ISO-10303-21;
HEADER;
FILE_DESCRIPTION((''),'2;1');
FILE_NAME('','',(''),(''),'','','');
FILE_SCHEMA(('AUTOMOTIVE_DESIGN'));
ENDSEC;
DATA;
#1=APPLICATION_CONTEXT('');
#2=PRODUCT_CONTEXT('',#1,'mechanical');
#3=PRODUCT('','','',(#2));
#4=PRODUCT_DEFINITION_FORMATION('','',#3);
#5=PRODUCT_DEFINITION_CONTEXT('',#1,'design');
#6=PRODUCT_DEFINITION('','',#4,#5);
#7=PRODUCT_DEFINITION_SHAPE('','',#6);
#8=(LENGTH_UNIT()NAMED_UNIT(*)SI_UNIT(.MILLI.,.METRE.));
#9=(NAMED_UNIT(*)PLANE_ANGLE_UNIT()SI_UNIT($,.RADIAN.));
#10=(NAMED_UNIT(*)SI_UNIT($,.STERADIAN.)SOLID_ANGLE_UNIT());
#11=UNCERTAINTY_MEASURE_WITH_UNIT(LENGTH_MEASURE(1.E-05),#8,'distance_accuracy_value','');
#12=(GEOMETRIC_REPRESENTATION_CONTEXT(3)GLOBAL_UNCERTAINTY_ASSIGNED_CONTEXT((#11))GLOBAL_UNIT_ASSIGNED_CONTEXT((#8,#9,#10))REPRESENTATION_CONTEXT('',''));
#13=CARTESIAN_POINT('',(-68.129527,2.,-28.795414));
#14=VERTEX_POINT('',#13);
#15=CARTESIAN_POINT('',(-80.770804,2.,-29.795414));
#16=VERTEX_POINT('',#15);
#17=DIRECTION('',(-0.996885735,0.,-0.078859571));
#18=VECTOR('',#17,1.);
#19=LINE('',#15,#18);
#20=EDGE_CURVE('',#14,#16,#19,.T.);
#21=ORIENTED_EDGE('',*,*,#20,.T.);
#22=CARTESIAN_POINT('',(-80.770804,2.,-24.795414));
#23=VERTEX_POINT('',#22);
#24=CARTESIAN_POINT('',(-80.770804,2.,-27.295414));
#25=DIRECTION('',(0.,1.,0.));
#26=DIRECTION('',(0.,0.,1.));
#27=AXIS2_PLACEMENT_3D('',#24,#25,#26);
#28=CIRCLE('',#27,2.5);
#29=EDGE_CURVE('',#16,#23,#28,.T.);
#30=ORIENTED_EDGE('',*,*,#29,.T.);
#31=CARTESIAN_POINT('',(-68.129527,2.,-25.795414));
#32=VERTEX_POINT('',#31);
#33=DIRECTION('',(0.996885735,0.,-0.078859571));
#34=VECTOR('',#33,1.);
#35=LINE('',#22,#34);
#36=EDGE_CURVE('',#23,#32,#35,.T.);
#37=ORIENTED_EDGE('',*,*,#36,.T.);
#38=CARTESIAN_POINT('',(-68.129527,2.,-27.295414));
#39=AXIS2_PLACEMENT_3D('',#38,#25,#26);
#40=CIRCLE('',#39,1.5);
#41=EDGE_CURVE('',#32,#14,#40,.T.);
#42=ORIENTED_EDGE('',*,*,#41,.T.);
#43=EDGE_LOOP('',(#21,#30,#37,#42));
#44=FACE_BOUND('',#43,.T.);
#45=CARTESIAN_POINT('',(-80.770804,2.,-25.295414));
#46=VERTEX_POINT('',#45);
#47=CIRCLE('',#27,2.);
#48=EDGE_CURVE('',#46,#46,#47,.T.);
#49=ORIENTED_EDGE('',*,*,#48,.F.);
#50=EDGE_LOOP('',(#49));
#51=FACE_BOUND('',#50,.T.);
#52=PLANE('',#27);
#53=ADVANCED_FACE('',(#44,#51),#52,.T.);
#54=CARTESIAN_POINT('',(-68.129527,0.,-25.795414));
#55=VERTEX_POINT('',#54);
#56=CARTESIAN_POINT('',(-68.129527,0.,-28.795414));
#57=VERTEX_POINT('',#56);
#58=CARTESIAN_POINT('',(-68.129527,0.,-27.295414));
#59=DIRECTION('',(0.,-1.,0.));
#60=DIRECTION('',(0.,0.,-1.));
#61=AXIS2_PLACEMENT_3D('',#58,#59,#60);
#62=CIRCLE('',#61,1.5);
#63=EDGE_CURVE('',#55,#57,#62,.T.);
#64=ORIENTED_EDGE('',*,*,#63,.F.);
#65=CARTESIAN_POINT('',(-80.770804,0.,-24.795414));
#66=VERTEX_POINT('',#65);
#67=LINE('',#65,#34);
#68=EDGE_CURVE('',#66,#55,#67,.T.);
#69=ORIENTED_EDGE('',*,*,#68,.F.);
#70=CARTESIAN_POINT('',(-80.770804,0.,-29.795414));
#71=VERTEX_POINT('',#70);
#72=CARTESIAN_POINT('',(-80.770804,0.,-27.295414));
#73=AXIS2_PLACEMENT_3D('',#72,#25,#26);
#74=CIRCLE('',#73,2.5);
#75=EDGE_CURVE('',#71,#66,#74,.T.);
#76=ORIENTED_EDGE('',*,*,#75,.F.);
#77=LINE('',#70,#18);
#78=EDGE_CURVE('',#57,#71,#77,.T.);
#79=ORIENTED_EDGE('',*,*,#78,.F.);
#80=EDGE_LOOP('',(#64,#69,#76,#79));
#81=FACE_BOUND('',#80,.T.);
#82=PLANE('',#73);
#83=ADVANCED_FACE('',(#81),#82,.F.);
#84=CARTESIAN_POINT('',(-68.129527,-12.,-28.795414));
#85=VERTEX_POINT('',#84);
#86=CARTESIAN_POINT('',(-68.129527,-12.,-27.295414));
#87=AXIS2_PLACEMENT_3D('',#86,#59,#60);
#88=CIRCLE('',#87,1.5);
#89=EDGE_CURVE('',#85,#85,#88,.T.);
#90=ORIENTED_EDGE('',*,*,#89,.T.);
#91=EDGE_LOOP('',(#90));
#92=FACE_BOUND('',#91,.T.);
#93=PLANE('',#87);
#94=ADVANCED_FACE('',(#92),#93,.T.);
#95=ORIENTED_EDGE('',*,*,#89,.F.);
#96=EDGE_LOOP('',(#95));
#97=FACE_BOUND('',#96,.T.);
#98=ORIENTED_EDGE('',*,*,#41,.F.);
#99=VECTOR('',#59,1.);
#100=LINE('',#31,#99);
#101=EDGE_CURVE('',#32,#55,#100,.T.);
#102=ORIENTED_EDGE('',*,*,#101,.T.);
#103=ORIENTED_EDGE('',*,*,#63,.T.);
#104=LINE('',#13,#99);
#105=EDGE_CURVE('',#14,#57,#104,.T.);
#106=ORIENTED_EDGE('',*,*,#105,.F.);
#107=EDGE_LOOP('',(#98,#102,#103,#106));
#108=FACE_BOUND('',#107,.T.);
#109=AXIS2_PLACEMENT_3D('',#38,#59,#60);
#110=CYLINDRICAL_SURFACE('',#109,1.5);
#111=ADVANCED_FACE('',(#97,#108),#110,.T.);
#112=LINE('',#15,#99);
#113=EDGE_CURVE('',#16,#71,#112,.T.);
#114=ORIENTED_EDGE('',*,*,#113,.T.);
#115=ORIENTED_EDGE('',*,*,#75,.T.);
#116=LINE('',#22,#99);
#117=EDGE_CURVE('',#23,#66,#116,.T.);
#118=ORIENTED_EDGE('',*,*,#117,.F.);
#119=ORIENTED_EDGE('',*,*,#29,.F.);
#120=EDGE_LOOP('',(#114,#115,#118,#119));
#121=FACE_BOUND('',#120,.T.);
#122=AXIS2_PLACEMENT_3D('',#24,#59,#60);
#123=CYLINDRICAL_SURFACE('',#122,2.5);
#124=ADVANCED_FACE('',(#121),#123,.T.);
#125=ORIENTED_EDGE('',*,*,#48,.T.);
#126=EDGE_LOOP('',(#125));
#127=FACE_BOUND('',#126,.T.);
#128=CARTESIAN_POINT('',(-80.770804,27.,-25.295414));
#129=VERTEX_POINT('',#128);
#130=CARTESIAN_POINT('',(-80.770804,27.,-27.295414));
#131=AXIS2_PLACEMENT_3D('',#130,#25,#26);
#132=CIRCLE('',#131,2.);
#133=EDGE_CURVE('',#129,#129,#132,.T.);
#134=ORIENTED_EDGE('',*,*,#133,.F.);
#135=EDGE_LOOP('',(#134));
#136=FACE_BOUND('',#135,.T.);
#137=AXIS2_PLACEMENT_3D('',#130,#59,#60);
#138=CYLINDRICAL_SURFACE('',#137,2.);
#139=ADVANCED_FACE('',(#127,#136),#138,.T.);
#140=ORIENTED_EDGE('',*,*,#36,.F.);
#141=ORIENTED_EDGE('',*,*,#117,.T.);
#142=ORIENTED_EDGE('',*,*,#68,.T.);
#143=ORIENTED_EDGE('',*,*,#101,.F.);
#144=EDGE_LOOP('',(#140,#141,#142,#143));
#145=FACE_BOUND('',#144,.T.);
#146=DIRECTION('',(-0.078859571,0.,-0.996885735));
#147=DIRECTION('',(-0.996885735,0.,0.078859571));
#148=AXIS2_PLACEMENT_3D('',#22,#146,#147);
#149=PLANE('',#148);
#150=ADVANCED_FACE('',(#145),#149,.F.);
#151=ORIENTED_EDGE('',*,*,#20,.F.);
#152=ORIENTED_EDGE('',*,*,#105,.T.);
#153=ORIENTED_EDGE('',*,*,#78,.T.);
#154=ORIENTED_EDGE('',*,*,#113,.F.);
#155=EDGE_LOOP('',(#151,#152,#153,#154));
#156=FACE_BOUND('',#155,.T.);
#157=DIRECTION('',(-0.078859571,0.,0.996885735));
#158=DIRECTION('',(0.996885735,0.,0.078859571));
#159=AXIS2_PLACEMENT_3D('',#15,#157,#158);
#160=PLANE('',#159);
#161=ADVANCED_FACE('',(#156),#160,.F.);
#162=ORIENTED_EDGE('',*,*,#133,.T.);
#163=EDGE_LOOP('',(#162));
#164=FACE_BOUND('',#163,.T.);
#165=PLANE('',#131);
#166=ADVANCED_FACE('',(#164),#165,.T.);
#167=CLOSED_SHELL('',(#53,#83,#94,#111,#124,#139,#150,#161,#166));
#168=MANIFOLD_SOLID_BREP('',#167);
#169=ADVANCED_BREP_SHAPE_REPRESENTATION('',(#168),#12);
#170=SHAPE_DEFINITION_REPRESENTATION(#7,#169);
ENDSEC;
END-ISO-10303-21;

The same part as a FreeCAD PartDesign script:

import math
import FreeCAD as App
import Part
import Sketcher
from FreeCAD import Vector
Q = App.Units.Quantity

doc = App.newDocument("Part")
body = doc.addObject("PartDesign::Body", "Body")

# Sketch on XZ plane
sketch1 = body.newObject("Sketcher::SketchObject", "Sketch")
sketch1.AttachmentSupport = (doc.getObject("XZ_Plane"), [""])
sketch1.MapMode = "FlatFace"
sketch1.addGeometry(Part.LineSegment(Vector(-68.1, -28.8, 0), Vector(-80.8, -29.8, 0)), False)
sketch1.addGeometry(Part.ArcOfCircle(Part.Circle(Vector(-80.8, -27.3, 0), Vector(0, 0, 1), 2.5), math.radians(90), math.radians(270)), False)
sketch1.addGeometry(Part.LineSegment(Vector(-80.8, -24.8, 0), Vector(-68.1, -25.8, 0)), False)
sketch1.addGeometry(Part.ArcOfCircle(Part.Circle(Vector(-68.1, -27.3, 0), Vector(0, 0, 1), 1.5), math.radians(-90), math.radians(90)), False)
sketch1.addConstraint(Sketcher.Constraint("Coincident", 0, 2, 1, 2))
sketch1.addConstraint(Sketcher.Constraint("Coincident", 1, 1, 2, 1))
sketch1.addConstraint(Sketcher.Constraint("Coincident", 2, 2, 3, 2))
sketch1.addConstraint(Sketcher.Constraint("Coincident", 3, 1, 0, 1))
sketch1.addConstraint(Sketcher.Constraint("Horizontal", 1, 3, 3, 3))
sketch1.addConstraint(Sketcher.Constraint("Vertical", 1, 3, 0, 2))
sketch1.addConstraint(Sketcher.Constraint("Vertical", 0, 2, 1, 1))
sketch1.addConstraint(Sketcher.Constraint("Vertical", 3, 3, 2, 2))
sketch1.addConstraint(Sketcher.Constraint("Vertical", 2, 2, 3, 1))
sketch1.addConstraint(Sketcher.Constraint("Radius", 1, Q("2.5 mm")))
sketch1.addConstraint(Sketcher.Constraint("Radius", 3, Q("1.5 mm")))
sketch1.addConstraint(Sketcher.Constraint("Distance", 0, Q("12.680769 mm")))
sketch1.addConstraint(Sketcher.Constraint("DistanceX", 1, 3, -1, 1, Q("80.770804 mm")))
sketch1.addConstraint(Sketcher.Constraint("DistanceY", 1, 3, -1, 1, Q("27.295414 mm")))
pad1 = body.newObject("PartDesign::Pad", "Pad")
pad1.Profile = sketch1
pad1.Length = 2
pad1.Reversed = True

# Sketch on XZ plane
sketch2 = body.newObject("Sketcher::SketchObject", "Sketch001")
sketch2.AttachmentSupport = (doc.getObject("XZ_Plane"), [""])
sketch2.MapMode = "FlatFace"
sketch2.AttachmentOffset = App.Placement(Vector(0, 0, -2), App.Rotation())
sketch2.addGeometry(Part.Circle(Vector(-80.8, -27.3, 0), Vector(0, 0, 1), 2), False)
sketch2.addConstraint(Sketcher.Constraint("Diameter", 0, Q("4 mm")))
sketch2.addConstraint(Sketcher.Constraint("DistanceX", 0, 3, -1, 1, Q("80.770804 mm")))
sketch2.addConstraint(Sketcher.Constraint("DistanceY", 0, 3, -1, 1, Q("27.295414 mm")))
pad2 = body.newObject("PartDesign::Pad", "Pad001")
pad2.Profile = sketch2
pad2.Length = 25
pad2.Reversed = True

# Sketch on XZ plane
sketch3 = body.newObject("Sketcher::SketchObject", "Sketch002")
sketch3.AttachmentSupport = (doc.getObject("XZ_Plane"), [""])
sketch3.MapMode = "FlatFace"
sketch3.AttachmentOffset = App.Placement(Vector(0, 0, 12), App.Rotation())
sketch3.addGeometry(Part.Circle(Vector(-68.1, -27.3, 0), Vector(0, 0, 1), 1.5), False)
sketch3.addConstraint(Sketcher.Constraint("Diameter", 0, Q("3 mm")))
sketch3.addConstraint(Sketcher.Constraint("DistanceX", 0, 3, -1, 1, Q("68.129527 mm")))
sketch3.addConstraint(Sketcher.Constraint("DistanceY", 0, 3, -1, 1, Q("27.295414 mm")))
pad3 = body.newObject("PartDesign::Pad", "Pad002")
pad3.Profile = sketch3
pad3.Length = 12
pad3.Reversed = True

doc.recompute()
